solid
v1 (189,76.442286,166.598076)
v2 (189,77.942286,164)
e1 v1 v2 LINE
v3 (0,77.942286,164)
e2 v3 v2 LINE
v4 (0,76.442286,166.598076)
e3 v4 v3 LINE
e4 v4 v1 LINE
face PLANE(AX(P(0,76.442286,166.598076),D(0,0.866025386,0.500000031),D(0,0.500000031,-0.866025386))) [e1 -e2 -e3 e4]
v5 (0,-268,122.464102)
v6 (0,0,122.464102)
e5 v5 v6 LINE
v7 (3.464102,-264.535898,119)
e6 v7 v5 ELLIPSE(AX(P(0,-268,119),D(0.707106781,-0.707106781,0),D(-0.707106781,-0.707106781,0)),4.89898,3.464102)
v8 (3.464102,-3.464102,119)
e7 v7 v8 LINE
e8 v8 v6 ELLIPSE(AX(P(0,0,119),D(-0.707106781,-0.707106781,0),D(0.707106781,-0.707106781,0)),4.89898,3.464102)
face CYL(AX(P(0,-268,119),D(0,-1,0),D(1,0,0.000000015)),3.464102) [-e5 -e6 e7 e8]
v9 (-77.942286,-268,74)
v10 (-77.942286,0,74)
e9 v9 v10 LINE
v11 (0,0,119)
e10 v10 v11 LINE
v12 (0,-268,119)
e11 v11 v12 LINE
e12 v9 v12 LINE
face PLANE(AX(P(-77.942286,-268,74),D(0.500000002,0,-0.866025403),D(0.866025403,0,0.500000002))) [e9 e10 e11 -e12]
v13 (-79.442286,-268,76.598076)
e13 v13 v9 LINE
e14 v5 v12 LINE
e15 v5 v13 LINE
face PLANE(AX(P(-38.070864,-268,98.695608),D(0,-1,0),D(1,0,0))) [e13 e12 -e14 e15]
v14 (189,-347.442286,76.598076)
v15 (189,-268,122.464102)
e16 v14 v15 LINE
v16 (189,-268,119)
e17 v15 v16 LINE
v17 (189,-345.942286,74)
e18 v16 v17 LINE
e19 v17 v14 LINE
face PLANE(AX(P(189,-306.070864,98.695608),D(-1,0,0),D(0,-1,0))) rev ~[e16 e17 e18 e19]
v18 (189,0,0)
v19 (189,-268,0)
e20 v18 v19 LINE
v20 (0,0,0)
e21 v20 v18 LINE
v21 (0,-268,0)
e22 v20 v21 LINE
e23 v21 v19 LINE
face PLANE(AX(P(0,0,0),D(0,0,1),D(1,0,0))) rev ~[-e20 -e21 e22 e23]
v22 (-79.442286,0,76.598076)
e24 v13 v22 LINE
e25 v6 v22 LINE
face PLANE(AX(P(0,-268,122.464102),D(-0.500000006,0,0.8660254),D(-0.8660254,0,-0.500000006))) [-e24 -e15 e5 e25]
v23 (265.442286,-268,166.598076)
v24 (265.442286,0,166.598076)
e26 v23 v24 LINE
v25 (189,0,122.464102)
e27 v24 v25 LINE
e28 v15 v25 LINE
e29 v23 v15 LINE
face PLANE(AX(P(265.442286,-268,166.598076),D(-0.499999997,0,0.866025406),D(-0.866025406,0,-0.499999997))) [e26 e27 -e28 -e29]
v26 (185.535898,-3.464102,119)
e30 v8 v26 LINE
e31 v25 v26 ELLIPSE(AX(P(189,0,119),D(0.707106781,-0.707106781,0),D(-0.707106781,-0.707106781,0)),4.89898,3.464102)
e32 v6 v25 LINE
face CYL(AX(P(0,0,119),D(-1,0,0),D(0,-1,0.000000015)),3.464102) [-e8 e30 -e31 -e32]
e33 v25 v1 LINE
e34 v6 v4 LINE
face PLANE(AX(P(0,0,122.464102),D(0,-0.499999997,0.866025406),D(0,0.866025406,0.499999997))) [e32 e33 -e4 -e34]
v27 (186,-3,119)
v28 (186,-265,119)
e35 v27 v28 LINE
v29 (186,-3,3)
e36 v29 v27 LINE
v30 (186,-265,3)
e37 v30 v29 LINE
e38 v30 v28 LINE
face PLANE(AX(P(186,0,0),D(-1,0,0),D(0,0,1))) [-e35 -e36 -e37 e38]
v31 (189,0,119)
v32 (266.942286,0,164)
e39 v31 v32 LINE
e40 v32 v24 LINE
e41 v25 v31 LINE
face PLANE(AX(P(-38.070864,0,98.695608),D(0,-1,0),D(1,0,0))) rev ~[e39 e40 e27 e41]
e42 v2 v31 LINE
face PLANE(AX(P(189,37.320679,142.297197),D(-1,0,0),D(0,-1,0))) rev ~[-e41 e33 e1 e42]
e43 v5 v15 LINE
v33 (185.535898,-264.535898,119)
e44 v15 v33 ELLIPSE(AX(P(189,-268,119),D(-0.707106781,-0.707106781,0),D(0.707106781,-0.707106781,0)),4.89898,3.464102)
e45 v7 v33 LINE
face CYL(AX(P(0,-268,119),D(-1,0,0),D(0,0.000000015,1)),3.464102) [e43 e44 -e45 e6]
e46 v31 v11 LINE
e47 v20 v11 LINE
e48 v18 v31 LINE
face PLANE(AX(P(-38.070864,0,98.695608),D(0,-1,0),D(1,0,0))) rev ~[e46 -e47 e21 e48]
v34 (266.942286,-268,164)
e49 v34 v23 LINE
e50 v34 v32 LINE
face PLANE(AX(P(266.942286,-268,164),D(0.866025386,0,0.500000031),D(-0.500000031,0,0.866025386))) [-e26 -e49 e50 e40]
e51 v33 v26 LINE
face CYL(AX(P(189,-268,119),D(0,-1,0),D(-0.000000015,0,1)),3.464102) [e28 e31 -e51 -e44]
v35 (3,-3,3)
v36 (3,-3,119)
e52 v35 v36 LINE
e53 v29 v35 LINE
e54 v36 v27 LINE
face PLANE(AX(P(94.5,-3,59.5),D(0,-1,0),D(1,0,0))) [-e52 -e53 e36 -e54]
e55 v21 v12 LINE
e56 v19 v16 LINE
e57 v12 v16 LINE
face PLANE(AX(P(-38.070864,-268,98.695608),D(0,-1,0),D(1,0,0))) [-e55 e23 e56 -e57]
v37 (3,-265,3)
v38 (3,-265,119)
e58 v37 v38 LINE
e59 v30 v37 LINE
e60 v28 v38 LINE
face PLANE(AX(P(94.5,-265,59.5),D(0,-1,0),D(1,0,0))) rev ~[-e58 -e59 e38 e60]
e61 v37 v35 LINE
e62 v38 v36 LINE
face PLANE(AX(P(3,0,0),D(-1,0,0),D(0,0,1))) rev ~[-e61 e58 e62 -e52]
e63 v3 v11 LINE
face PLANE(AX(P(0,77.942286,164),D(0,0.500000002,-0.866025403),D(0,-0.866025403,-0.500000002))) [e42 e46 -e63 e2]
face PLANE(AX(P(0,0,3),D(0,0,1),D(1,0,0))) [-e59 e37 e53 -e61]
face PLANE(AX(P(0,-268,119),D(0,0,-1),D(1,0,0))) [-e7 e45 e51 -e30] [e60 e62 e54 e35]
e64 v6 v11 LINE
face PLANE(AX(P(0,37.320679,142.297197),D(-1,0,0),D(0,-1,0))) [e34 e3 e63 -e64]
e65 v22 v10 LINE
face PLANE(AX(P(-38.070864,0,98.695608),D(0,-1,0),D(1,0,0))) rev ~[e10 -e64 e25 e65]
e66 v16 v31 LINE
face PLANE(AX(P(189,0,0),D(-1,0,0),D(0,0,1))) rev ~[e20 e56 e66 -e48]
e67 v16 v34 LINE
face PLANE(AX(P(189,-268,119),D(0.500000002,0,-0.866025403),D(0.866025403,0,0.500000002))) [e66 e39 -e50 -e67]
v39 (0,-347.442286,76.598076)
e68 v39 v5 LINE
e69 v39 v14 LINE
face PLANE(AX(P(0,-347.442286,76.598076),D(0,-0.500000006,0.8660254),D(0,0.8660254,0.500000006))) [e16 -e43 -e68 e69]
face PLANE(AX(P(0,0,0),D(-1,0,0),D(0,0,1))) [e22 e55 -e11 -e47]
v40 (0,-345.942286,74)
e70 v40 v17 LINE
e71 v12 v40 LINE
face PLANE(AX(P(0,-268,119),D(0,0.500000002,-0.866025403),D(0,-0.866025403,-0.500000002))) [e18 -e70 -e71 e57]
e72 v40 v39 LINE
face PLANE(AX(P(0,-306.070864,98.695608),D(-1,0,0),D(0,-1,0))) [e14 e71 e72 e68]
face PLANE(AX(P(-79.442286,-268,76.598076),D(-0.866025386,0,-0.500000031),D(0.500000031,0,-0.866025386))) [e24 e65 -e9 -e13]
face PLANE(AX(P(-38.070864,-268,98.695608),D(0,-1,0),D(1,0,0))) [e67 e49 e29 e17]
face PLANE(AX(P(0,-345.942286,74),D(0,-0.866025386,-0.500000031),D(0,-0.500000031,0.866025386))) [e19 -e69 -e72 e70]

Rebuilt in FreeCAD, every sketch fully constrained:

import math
import FreeCAD as App
import Part
import Sketcher
Q = App.Units.Quantity


def faces_at(feature, points):
    """Names of the faces that lie closest to the given points."""
    faces = feature.Shape.Faces
    near = lambda p: min(range(len(faces)), key=lambda i: faces[i].distToShape(Part.Vertex(*p))[0])
    return sorted({f"Face{near(p) + 1}" for p in points})


def add_polygon(sketch, points):
    """Adds a closed chain of lines whose ends are joined by coincident constraints."""
    first, n = sketch.GeometryCount, len(points)
    for a, b in zip(points, points[1:] + points[:1]):
        sketch.addGeometry(Part.LineSegment(App.Vector(*a, 0), App.Vector(*b, 0)), False)
    for i in range(n):
        sketch.addConstraint(Sketcher.Constraint("Coincident", first + i, 2, first + (i + 1) % n, 1))

doc = App.newDocument("Part")
params = doc.addObject("Spreadsheet::Sheet", "Params")
for row, (alias, value) in enumerate([
    ("sketch1_width", "189 mm"),
    ("sketch1_height", "119 mm"),
    ("pad1_length", "268 mm"),
    ("thickness_wall", "3 mm"),
    ("sketch2_length", "90 mm"),
    ("sketch2_length2", "3 mm"),
    ("pad2_length", "268 mm"),
    ("sketch3_length", "90 mm"),
    ("sketch3_length2", "3 mm"),
    ("pad3_length", "189 mm"),
], start=1):
    params.set(f"A{row}", alias)
    params.set(f"B{row}", "=" + value)
    params.setAlias(f"B{row}", alias)

body = doc.addObject("PartDesign::Body", "Body")

sketch1 = body.newObject("Sketcher::SketchObject", "Sketch")
sketch1.AttachmentSupport = (doc.getObject("XZ_Plane"), [""])
sketch1.MapMode = "FlatFace"
add_polygon(sketch1, [(0, 119), (0, 0), (189, 0), (189, 119)])
sketch1.addConstraint(Sketcher.Constraint("Vertical", 0))
sketch1.addConstraint(Sketcher.Constraint("Horizontal", 1))
sketch1.addConstraint(Sketcher.Constraint("Vertical", 2))
sketch1.addConstraint(Sketcher.Constraint("Horizontal", 3))
sketch1.addConstraint(Sketcher.Constraint("Coincident", 0, 2, -1, 1))
sketch1.addConstraint(Sketcher.Constraint("DistanceX", 1, 1, 1, 2, Q("189 mm")))
sketch1.addConstraint(Sketcher.Constraint("DistanceY", 0, 2, 0, 1, Q("119 mm")))
sketch1.setExpression("Constraints[9]", "Params.sketch1_width")
sketch1.setExpression("Constraints[10]", "Params.sketch1_height")
pad1 = body.newObject("PartDesign::Pad", "Pad")
pad1.Profile = sketch1
pad1.setExpression("Length", "Params.pad1_length")
doc.recompute()

thickness = body.newObject("PartDesign::Thickness", "Thickness")
thickness.Base = (pad1, faces_at(pad1, [(94.5, -134, 119)]))
thickness.setExpression("Value", "Params.thickness_wall")
thickness.Reversed = True
thickness.Join = "Arc"

sketch2 = body.newObject("Sketcher::SketchObject", "Sketch001")
sketch2.AttachmentSupport = (doc.getObject("XZ_Plane"), [""])
sketch2.MapMode = "FlatFace"
sketch2.AttachmentOffset = App.Placement(App.Vector(0, 0, 268), App.Rotation())
sketch2.addGeometry(Part.LineSegment(App.Vector(-77.9, 74, 0), App.Vector(0, 119, 0)), False)
sketch2.addGeometry(Part.LineSegment(App.Vector(0, 119, 0), App.Vector(3.5, 119, 0)), False)
sketch2.addGeometry(Part.ArcOfCircle(Part.Circle(App.Vector(0, 119, 0), App.Vector(0, 0, 1), 3.5), math.radians(0), math.radians(90)), False)
sketch2.addGeometry(Part.LineSegment(App.Vector(0, 122.5, 0), App.Vector(-79.4, 76.6, 0)), False)
sketch2.addGeometry(Part.LineSegment(App.Vector(-79.4, 76.6, 0), App.Vector(-77.9, 74, 0)), False)
sketch2.addGeometry(Part.LineSegment(App.Vector(185.5, 119, 0), App.Vector(189, 119, 0)), False)
sketch2.addGeometry(Part.LineSegment(App.Vector(189, 119, 0), App.Vector(266.9, 164, 0)), False)
sketch2.addGeometry(Part.LineSegment(App.Vector(266.9, 164, 0), App.Vector(265.4, 166.6, 0)), False)
sketch2.addGeometry(Part.LineSegment(App.Vector(265.4, 166.6, 0), App.Vector(189, 122.5, 0)), False)
sketch2.addGeometry(Part.ArcOfCircle(Part.Circle(App.Vector(189, 119, 0), App.Vector(0, 0, 1), 3.5), math.radians(90), math.radians(180)), False)
sketch2.addConstraint(Sketcher.Constraint("Coincident", 0, 2, 1, 1))
sketch2.addConstraint(Sketcher.Constraint("Coincident", 1, 2, 2, 1))
sketch2.addConstraint(Sketcher.Constraint("Coincident", 2, 2, 3, 1))
sketch2.addConstraint(Sketcher.Constraint("Coincident", 3, 2, 4, 1))
sketch2.addConstraint(Sketcher.Constraint("Coincident", 4, 2, 0, 1))
sketch2.addConstraint(Sketcher.Constraint("Coincident", 5, 2, 6, 1))
sketch2.addConstraint(Sketcher.Constraint("Coincident", 6, 2, 7, 1))
sketch2.addConstraint(Sketcher.Constraint("Coincident", 7, 2, 8, 1))
sketch2.addConstraint(Sketcher.Constraint("Coincident", 8, 2, 9, 1))
sketch2.addConstraint(Sketcher.Constraint("Coincident", 9, 2, 5, 1))
sketch2.addConstraint(Sketcher.Constraint("Horizontal", 1))
sketch2.addConstraint(Sketcher.Constraint("Horizontal", 5))
sketch2.addConstraint(Sketcher.Constraint("Coincident", 0, 2, 2, 3))
sketch2.addConstraint(Sketcher.Constraint("Coincident", 5, 2, 9, 3))
sketch2.addConstraint(Sketcher.Constraint("Equal", 2, 9))
sketch2.addConstraint(Sketcher.Constraint("PointOnObject", 2, 3, -2))
sketch2.addConstraint(Sketcher.Constraint("PointOnObject", 2, 2, -2))
sketch2.addConstraint(Sketcher.Constraint("Parallel", 0, 3))
sketch2.addConstraint(Sketcher.Constraint("Perpendicular", 3, 4))
sketch2.addConstraint(Sketcher.Constraint("Perpendicular", 4, 6))
sketch2.addConstraint(Sketcher.Constraint("Perpendicular", 6, 7))
sketch2.addConstraint(Sketcher.Constraint("Perpendicular", 7, 8))
sketch2.addConstraint(Sketcher.Constraint("Horizontal", 2, 3, 9, 3))
sketch2.addConstraint(Sketcher.Constraint("Vertical", 5, 2, 8, 2))
sketch2.addConstraint(Sketcher.Constraint("Equal", 0, 6))
sketch2.addConstraint(Sketcher.Constraint("Angle", 0, Q("30 deg")))
sketch2.addConstraint(Sketcher.Constraint("Distance", 0, Q("90 mm")))
sketch2.addConstraint(Sketcher.Constraint("Distance", 4, Q("3 mm")))
sketch2.addConstraint(Sketcher.Constraint("DistanceY", -1, 1, 2, 3, Q("119 mm")))
sketch2.addConstraint(Sketcher.Constraint("DistanceX", -1, 1, 9, 3, Q("189 mm")))
sketch2.setExpression("Constraints[26]", "Params.sketch2_length")
sketch2.setExpression("Constraints[27]", "Params.sketch2_length2")
pad2 = body.newObject("PartDesign::Pad", "Pad001")
pad2.Profile = sketch2
pad2.setExpression("Length", "Params.pad2_length")
pad2.Reversed = True

sketch3 = body.newObject("Sketcher::SketchObject", "Sketch002")
sketch3.AttachmentSupport = (doc.getObject("YZ_Plane"), [""])
sketch3.MapMode = "FlatFace"
sketch3.addGeometry(Part.LineSegment(App.Vector(-264.5, 119, 0), App.Vector(-268, 119, 0)), False)
sketch3.addGeometry(Part.LineSegment(App.Vector(-268, 119, 0), App.Vector(-345.9, 74, 0)), False)
sketch3.addGeometry(Part.LineSegment(App.Vector(-345.9, 74, 0), App.Vector(-347.4, 76.6, 0)), False)
sketch3.addGeometry(Part.LineSegment(App.Vector(-347.4, 76.6, 0), App.Vector(-268, 122.5, 0)), False)
sketch3.addGeometry(Part.ArcOfCircle(Part.Circle(App.Vector(-268, 119, 0), App.Vector(0, 0, 1), 3.5), math.radians(0), math.radians(90)), False)
sketch3.addGeometry(Part.LineSegment(App.Vector(77.9, 164, 0), App.Vector(0, 119, 0)), False)
sketch3.addGeometry(Part.LineSegment(App.Vector(0, 119, 0), App.Vector(-3.5, 119, 0)), False)
sketch3.addGeometry(Part.ArcOfCircle(Part.Circle(App.Vector(0, 119, 0), App.Vector(0, 0, 1), 3.5), math.radians(90), math.radians(180)), False)
sketch3.addGeometry(Part.LineSegment(App.Vector(0, 122.5, 0), App.Vector(76.4, 166.6, 0)), False)
sketch3.addGeometry(Part.LineSegment(App.Vector(76.4, 166.6, 0), App.Vector(77.9, 164, 0)), False)
sketch3.addConstraint(Sketcher.Constraint("Coincident", 0, 2, 1, 1))
sketch3.addConstraint(Sketcher.Constraint("Coincident", 1, 2, 2, 1))
sketch3.addConstraint(Sketcher.Constraint("Coincident", 2, 2, 3, 1))
sketch3.addConstraint(Sketcher.Constraint("Coincident", 3, 2, 4, 2))
sketch3.addConstraint(Sketcher.Constraint("Coincident", 4, 1, 0, 1))
sketch3.addConstraint(Sketcher.Constraint("Coincident", 5, 2, 6, 1))
sketch3.addConstraint(Sketcher.Constraint("Coincident", 6, 2, 7, 2))
sketch3.addConstraint(Sketcher.Constraint("Coincident", 7, 1, 8, 1))
sketch3.addConstraint(Sketcher.Constraint("Coincident", 8, 2, 9, 1))
sketch3.addConstraint(Sketcher.Constraint("Coincident", 9, 2, 5, 1))
sketch3.addConstraint(Sketcher.Constraint("Horizontal", 0))
sketch3.addConstraint(Sketcher.Constraint("Horizontal", 6))
sketch3.addConstraint(Sketcher.Constraint("Coincident", 0, 2, 4, 3))
sketch3.addConstraint(Sketcher.Constraint("Coincident", 5, 2, 7, 3))
sketch3.addConstraint(Sketcher.Constraint("Equal", 4, 7))
sketch3.addConstraint(Sketcher.Constraint("PointOnObject", 7, 3, -2))
sketch3.addConstraint(Sketcher.Constraint("PointOnObject", 7, 1, -2))
sketch3.addConstraint(Sketcher.Constraint("Perpendicular", 1, 2))
sketch3.addConstraint(Sketcher.Constraint("Perpendicular", 2, 3))
sketch3.addConstraint(Sketcher.Constraint("Parallel", 3, 5))
sketch3.addConstraint(Sketcher.Constraint("Parallel", 5, 8))
sketch3.addConstraint(Sketcher.Constraint("Perpendicular", 8, 9))
sketch3.addConstraint(Sketcher.Constraint("Horizontal", 4, 3, 7, 3))
sketch3.addConstraint(Sketcher.Constraint("Vertical", 0, 2, 3, 2))
sketch3.addConstraint(Sketcher.Constraint("Equal", 1, 5))
sketch3.addConstraint(Sketcher.Constraint("Angle", 1, Q("-150 deg")))
sketch3.addConstraint(Sketcher.Constraint("Distance", 1, Q("90 mm")))
sketch3.addConstraint(Sketcher.Constraint("Distance", 2, Q("3 mm")))
sketch3.addConstraint(Sketcher.Constraint("DistanceX", 4, 3, -1, 1, Q("268 mm")))
sketch3.addConstraint(Sketcher.Constraint("DistanceY", -1, 1, 4, 3, Q("119 mm")))
sketch3.setExpression("Constraints[26]", "Params.sketch3_length")
sketch3.setExpression("Constraints[27]", "Params.sketch3_length2")
pad3 = body.newObject("PartDesign::Pad", "Pad002")
pad3.Profile = sketch3
pad3.setExpression("Length", "Params.pad3_length")

doc.recompute()
